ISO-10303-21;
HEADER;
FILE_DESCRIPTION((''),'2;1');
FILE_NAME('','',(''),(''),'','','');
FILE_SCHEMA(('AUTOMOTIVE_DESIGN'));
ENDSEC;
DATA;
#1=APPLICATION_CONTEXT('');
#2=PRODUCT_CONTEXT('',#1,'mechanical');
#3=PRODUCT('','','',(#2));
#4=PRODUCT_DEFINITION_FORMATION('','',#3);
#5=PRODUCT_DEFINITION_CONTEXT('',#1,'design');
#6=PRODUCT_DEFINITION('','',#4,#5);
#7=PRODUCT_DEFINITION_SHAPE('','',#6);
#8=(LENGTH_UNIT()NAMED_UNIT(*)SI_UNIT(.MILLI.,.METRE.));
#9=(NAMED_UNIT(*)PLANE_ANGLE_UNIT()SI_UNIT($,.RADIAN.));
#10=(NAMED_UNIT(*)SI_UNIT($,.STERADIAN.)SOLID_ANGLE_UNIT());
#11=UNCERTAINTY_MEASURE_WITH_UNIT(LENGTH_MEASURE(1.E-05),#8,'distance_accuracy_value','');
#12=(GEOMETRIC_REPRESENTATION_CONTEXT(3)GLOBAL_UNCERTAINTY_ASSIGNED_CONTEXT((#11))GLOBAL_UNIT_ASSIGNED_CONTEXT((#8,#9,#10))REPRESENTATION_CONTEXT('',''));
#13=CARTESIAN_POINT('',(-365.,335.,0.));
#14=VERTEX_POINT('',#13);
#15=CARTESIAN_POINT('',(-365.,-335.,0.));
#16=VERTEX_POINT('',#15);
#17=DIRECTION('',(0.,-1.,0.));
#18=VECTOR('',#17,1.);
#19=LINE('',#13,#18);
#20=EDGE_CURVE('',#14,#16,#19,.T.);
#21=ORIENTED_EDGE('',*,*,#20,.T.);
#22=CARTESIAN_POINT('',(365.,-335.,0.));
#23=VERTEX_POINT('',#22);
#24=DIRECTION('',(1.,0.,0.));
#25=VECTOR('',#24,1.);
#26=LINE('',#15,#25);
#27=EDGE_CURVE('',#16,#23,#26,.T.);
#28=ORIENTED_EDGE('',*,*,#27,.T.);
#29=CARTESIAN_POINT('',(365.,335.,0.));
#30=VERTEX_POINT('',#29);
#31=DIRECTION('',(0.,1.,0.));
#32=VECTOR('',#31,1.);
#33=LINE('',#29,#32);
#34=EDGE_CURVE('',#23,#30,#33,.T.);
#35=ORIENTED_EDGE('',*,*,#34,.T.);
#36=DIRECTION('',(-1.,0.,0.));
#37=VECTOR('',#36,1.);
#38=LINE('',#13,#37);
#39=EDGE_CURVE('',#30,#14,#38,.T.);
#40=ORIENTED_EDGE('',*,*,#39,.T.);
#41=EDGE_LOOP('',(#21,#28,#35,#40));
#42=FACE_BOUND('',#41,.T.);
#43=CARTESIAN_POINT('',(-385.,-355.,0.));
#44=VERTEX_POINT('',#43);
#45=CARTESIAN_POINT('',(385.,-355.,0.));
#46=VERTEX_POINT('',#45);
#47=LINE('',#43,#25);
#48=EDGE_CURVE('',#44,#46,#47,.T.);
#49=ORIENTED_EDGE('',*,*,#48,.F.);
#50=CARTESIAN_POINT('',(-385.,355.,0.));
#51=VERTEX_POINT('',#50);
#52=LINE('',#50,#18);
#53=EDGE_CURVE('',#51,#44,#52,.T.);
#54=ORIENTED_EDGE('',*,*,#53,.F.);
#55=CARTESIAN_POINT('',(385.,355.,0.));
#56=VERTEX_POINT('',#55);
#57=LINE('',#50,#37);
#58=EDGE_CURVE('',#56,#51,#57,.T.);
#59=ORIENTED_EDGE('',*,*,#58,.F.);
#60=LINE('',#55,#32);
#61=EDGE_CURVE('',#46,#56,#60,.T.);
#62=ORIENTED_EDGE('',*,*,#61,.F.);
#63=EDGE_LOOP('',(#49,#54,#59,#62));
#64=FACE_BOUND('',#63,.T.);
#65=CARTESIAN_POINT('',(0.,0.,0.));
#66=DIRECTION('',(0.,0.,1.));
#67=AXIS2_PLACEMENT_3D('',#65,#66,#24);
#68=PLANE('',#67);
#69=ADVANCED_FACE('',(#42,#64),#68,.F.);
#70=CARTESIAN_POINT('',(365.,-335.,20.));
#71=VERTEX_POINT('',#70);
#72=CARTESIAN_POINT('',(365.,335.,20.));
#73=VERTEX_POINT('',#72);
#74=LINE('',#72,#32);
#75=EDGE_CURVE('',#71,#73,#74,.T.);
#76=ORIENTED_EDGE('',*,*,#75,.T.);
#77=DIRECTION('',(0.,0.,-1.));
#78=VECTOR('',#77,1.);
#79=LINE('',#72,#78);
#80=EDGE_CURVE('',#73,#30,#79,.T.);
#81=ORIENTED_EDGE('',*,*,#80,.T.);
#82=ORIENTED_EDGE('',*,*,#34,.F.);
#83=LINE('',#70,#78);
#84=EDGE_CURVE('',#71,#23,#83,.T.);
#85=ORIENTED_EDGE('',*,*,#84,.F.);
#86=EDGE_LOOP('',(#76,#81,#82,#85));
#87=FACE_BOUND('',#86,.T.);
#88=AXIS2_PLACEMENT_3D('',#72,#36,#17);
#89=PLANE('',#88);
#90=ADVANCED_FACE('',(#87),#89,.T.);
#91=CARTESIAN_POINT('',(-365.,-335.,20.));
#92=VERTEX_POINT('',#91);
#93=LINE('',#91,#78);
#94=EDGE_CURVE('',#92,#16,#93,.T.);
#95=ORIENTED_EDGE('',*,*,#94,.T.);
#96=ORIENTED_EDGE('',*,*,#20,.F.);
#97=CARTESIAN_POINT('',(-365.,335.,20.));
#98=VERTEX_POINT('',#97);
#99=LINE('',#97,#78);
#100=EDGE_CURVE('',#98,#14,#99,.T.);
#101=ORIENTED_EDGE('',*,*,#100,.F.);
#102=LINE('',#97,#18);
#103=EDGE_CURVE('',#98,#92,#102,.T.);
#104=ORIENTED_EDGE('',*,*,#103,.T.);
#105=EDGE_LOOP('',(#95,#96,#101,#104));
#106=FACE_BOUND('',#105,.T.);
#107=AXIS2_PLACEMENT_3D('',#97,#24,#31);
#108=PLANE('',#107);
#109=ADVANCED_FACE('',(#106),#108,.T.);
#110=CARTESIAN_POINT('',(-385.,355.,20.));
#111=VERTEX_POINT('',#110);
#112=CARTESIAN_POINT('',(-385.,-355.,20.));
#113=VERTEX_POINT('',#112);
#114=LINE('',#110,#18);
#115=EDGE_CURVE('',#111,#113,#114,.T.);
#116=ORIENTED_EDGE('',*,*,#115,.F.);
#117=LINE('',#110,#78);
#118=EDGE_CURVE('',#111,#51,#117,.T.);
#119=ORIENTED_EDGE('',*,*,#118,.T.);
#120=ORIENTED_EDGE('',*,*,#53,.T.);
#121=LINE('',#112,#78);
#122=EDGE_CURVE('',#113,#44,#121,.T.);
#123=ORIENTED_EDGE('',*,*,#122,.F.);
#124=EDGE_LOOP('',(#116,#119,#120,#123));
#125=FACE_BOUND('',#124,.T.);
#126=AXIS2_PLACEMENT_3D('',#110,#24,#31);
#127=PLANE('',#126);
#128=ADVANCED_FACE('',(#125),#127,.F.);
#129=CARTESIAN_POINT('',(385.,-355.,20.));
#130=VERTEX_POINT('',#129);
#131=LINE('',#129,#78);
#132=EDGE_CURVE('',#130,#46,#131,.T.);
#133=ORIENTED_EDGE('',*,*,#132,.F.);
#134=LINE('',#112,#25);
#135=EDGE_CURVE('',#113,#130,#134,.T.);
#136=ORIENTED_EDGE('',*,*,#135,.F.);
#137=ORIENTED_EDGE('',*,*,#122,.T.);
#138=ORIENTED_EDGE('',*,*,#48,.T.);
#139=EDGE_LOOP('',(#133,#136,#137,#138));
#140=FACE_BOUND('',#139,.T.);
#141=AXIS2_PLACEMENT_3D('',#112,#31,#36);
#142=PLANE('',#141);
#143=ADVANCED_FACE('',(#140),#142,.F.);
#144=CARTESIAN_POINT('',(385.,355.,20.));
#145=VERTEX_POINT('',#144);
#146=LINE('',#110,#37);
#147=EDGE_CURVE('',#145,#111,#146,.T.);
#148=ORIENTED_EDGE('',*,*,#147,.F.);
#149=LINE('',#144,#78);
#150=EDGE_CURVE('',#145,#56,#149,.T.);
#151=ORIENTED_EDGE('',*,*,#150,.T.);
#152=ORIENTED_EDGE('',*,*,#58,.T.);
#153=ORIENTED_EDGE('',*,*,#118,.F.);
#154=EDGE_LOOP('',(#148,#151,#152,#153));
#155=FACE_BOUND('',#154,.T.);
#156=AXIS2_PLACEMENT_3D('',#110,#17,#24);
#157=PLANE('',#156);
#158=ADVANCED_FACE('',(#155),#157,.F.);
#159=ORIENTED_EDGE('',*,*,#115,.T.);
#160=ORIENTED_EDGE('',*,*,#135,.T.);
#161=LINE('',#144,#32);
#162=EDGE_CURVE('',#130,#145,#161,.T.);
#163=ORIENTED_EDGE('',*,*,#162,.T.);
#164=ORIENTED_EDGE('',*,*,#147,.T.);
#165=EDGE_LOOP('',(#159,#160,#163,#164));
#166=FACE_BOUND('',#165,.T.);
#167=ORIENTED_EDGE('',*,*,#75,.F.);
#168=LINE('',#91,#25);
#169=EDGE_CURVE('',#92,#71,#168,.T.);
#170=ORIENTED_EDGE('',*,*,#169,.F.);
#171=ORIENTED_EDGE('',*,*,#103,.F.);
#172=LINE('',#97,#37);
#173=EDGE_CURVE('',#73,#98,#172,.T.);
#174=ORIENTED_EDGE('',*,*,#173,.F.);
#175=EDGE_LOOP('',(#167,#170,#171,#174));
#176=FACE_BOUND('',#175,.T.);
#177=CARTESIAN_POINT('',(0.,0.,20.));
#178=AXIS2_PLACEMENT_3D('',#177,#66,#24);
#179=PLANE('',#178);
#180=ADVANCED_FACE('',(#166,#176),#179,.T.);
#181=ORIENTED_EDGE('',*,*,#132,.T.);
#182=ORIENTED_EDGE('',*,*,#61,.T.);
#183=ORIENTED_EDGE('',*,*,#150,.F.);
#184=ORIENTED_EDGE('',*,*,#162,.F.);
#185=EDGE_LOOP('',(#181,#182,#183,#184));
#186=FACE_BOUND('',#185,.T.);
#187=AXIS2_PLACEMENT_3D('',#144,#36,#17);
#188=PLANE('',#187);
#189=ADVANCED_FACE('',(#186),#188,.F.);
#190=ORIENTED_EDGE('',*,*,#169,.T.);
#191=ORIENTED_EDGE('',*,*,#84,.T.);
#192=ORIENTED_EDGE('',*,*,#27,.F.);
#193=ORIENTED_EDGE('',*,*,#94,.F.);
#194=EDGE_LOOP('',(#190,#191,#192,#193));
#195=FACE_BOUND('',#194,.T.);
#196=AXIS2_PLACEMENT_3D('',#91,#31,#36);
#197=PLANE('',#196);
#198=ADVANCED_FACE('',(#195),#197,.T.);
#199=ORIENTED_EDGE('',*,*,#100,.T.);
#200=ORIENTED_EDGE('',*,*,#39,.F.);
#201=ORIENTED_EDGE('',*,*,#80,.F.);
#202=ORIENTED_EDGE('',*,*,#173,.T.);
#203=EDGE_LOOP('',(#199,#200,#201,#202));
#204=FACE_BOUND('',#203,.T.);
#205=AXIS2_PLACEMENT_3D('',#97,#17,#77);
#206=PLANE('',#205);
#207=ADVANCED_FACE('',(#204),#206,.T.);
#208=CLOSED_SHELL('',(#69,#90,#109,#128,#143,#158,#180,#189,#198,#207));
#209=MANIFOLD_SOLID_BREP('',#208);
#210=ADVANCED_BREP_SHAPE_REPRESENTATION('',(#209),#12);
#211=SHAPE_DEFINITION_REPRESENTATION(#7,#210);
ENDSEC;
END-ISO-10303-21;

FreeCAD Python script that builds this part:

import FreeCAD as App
import Part
import Sketcher
from FreeCAD import Vector

doc = App.newDocument("Part")
body = doc.addObject("PartDesign::Body", "Body")

# Sketch on XY plane
sketch1 = body.newObject("Sketcher::SketchObject", "Sketch")
sketch1.AttachmentSupport = (doc.getObject("XY_Plane"), [""])
sketch1.MapMode = "FlatFace"
sketch1.addGeometry([
    Part.LineSegment(Vector(-385, 355, 0), Vector(-385, -355, 0)),  # 0
    Part.LineSegment(Vector(-385, -355, 0), Vector(385, -355, 0)),  # 1
    Part.LineSegment(Vector(385, -355, 0), Vector(385, 355, 0)),  # 2
    Part.LineSegment(Vector(385, 355, 0), Vector(-385, 355, 0)),  # 3
    Part.LineSegment(Vector(365, -335, 0), Vector(-365, -335, 0)),  # 4
    Part.LineSegment(Vector(-365, -335, 0), Vector(-365, 335, 0)),  # 5
    Part.LineSegment(Vector(-365, 335, 0), Vector(365, 335, 0)),  # 6
    Part.LineSegment(Vector(365, 335, 0), Vector(365, -335, 0)),  # 7
], False)
sketch1.addConstraint([
    Sketcher.Constraint("Coincident", 0, 2, 1, 1),
    Sketcher.Constraint("Coincident", 1, 2, 2, 1),
    Sketcher.Constraint("Coincident", 2, 2, 3, 1),
    Sketcher.Constraint("Coincident", 3, 2, 0, 1),
    Sketcher.Constraint("Coincident", 4, 2, 5, 1),
    Sketcher.Constraint("Coincident", 5, 2, 6, 1),
    Sketcher.Constraint("Coincident", 6, 2, 7, 1),
    Sketcher.Constraint("Coincident", 7, 2, 4, 1),
    Sketcher.Constraint("Vertical", 0),
    Sketcher.Constraint("Horizontal", 1),
    Sketcher.Constraint("Vertical", 2),
    Sketcher.Constraint("Horizontal", 3),
    Sketcher.Constraint("Horizontal", 4),
    Sketcher.Constraint("Vertical", 5),
    Sketcher.Constraint("Horizontal", 6),
    Sketcher.Constraint("Vertical", 7),
    Sketcher.Constraint("Symmetric", 0, 2, 2, 2, -1, 1),
    Sketcher.Constraint("Symmetric", 4, 2, 6, 2, -1, 1),
    Sketcher.Constraint("DistanceX", 1, 1, 1, 2, 770.0),
    Sketcher.Constraint("DistanceX", 4, 2, 4, 1, 730.0),
    Sketcher.Constraint("DistanceY", 0, 2, 0, 1, 710.0),
    Sketcher.Constraint("DistanceY", 5, 1, 5, 2, 670.0),
])
pad1 = body.newObject("PartDesign::Pad", "Pad")
pad1.Profile = sketch1
pad1.Length = 20

doc.recompute()
